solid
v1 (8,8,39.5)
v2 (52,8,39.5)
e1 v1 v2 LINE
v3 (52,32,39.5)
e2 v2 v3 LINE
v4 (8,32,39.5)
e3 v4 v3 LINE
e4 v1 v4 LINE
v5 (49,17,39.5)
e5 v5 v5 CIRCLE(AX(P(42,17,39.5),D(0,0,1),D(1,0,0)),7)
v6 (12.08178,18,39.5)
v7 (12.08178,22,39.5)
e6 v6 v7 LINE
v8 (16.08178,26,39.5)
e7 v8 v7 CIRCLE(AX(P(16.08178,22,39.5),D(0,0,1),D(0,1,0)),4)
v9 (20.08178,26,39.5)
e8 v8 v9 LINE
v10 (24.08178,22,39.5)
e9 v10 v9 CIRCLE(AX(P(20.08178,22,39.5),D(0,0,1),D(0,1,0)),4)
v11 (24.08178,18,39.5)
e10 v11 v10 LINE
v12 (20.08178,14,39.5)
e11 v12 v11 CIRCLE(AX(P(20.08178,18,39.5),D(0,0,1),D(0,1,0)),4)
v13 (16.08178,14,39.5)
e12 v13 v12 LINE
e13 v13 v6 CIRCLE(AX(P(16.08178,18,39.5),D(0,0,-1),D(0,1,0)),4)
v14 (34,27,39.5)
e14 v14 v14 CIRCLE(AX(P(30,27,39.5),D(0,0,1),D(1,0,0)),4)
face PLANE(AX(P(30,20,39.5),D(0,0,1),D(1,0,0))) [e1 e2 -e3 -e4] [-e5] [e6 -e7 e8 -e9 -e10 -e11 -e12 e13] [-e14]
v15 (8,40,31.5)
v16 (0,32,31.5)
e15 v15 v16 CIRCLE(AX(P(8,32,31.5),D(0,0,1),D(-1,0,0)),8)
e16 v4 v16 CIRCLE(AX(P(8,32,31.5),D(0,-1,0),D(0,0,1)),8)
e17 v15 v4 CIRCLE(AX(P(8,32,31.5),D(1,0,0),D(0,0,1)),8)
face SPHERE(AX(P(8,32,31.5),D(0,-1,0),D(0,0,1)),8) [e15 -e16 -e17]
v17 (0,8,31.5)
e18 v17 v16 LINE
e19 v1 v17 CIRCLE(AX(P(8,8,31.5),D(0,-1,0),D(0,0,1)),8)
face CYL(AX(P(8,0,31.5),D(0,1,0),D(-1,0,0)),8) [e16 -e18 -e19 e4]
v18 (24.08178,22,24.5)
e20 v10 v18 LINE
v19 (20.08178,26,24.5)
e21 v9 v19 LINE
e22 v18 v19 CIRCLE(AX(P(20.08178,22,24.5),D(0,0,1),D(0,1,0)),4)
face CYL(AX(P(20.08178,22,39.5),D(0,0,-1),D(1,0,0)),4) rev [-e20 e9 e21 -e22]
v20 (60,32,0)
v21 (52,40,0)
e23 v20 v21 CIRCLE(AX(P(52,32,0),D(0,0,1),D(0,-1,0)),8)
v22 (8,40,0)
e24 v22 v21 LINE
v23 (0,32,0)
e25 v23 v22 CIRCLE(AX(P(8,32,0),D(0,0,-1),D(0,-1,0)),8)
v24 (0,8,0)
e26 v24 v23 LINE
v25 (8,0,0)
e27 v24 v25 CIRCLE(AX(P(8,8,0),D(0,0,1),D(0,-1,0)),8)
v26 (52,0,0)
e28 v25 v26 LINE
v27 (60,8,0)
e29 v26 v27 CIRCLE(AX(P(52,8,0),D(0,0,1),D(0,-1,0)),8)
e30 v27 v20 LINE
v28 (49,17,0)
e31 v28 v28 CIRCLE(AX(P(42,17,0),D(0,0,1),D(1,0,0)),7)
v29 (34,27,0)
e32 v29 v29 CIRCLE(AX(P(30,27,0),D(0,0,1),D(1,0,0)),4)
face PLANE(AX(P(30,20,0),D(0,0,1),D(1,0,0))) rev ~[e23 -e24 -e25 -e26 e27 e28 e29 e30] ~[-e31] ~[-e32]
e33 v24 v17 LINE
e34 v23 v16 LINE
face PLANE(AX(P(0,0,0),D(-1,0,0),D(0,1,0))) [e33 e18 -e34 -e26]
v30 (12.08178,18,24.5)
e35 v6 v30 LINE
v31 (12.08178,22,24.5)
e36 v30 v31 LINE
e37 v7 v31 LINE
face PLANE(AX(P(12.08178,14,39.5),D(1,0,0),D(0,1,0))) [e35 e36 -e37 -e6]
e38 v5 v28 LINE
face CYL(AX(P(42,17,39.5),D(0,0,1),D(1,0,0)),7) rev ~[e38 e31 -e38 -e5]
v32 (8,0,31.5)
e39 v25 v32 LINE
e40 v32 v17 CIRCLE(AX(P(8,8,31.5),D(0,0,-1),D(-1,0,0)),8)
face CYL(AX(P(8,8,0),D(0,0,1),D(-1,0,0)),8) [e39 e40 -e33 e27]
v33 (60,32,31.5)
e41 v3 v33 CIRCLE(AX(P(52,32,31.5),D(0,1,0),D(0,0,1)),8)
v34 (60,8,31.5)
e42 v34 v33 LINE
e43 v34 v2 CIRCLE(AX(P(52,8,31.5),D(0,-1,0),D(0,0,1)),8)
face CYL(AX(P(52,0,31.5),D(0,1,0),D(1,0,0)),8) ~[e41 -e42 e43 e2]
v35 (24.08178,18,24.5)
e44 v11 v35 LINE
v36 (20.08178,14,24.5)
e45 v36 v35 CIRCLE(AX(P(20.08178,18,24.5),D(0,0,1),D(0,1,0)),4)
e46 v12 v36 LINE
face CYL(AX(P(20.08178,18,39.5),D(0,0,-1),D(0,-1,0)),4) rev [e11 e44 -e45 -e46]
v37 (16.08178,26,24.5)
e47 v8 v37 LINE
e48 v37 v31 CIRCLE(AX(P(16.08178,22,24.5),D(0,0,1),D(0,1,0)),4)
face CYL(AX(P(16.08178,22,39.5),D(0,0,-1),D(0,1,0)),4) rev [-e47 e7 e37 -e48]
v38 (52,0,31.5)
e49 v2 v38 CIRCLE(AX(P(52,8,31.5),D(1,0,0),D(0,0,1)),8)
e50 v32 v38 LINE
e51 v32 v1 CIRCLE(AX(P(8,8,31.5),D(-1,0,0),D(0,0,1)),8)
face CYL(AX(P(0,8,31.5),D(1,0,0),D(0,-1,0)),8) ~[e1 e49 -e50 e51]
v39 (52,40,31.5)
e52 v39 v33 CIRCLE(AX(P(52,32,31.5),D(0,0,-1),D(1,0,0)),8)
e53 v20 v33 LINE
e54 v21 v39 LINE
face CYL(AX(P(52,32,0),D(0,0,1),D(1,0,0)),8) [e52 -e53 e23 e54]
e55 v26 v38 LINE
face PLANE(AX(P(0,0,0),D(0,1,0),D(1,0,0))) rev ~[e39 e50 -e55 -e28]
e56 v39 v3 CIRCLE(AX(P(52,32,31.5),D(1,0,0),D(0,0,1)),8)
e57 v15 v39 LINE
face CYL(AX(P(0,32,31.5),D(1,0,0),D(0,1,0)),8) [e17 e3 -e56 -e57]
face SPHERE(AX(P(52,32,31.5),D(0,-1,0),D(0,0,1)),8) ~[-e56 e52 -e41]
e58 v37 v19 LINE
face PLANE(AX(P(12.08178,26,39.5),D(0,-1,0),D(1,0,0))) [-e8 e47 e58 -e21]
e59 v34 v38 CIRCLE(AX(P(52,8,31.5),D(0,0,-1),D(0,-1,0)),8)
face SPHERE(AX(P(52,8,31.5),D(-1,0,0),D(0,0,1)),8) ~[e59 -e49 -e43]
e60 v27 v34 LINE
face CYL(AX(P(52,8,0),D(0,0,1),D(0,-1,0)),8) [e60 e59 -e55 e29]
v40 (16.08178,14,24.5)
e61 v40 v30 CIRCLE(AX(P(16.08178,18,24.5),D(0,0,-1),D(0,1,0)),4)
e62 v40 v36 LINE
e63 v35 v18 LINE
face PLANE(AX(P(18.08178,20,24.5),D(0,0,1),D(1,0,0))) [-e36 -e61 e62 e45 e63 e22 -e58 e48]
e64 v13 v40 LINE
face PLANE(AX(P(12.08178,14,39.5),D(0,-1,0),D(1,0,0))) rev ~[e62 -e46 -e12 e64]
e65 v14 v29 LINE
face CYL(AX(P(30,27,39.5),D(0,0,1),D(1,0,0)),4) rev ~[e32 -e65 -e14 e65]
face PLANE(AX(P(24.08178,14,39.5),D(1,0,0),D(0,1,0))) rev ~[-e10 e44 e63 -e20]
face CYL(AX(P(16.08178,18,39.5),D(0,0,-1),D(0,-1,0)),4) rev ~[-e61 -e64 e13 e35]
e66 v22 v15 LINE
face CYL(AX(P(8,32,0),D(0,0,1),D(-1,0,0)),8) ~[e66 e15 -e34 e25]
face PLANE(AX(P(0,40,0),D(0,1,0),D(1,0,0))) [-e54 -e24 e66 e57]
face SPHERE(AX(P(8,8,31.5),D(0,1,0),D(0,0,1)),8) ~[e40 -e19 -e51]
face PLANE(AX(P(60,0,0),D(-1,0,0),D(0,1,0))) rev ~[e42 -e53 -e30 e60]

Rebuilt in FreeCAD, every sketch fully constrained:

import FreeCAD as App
import Part
import Sketcher

V = App.Vector


def edges_at(feature, points):
    """Names of the edges that pass closest to the given points."""
    edges = feature.Shape.Edges
    near = lambda p: min(range(len(edges)), key=lambda i: edges[i].distToShape(Part.Vertex(*p))[0])
    return sorted({f"Edge{near(p) + 1}" for p in points})


def add_polygon(sketch, points):
    """Adds a closed chain of lines whose ends are joined by coincident constraints."""
    first, n = sketch.GeometryCount, len(points)
    for a, b in zip(points, points[1:] + points[:1]):
        sketch.addGeometry(Part.LineSegment(App.Vector(*a, 0), App.Vector(*b, 0)), False)
    for i in range(n):
        sketch.addConstraint(Sketcher.Constraint("Coincident", first + i, 2, first + (i + 1) % n, 1))

doc = App.newDocument("Part")
body = doc.addObject("PartDesign::Body", "Body")

# Sketch on XY plane
sketch1 = body.newObject("Sketcher::SketchObject", "Sketch")
sketch1.AttachmentSupport = (doc.getObject("XY_Plane"), [""])
sketch1.MapMode = "FlatFace"
add_polygon(sketch1, [(0, 40), (0, 0), (60, 0), (60, 40)])  # lines 0-3
sketch1.addConstraint(Sketcher.Constraint("Vertical", 0))
sketch1.addConstraint(Sketcher.Constraint("Horizontal", 1))
sketch1.addConstraint(Sketcher.Constraint("Vertical", 2))
sketch1.addConstraint(Sketcher.Constraint("Horizontal", 3))
sketch1.addConstraint(Sketcher.Constraint("Coincident", 0, 2, -1, 1))
sketch1.addConstraint(Sketcher.Constraint("DistanceX", 1, 1, 1, 2, 60.0))
sketch1.addConstraint(Sketcher.Constraint("DistanceY", 0, 2, 0, 1, 40.0))
pad1 = body.newObject("PartDesign::Pad", "Pad")
pad1.Profile = sketch1
pad1.Length = 39.5
doc.recompute()

fillet = body.newObject("PartDesign::Fillet", "Fillet")
fillet.Base = (pad1, edges_at(pad1, [
    (0, 20, 39.5),
    (30, 0, 39.5),
    (60, 20, 39.5),
    (30, 40, 39.5),
    (60, 0, 19.75),
    (60, 40, 19.75),
    (0, 0, 19.75),
    (0, 40, 19.75),
]))
fillet.Radius = 8

# Sketch on XY plane
sketch2 = body.newObject("Sketcher::SketchObject", "Sketch001")
sketch2.AttachmentSupport = (doc.getObject("XY_Plane"), [""])
sketch2.MapMode = "FlatFace"
sketch2.AttachmentOffset = App.Placement(V(0, 0, 39.5), App.Rotation())
add_polygon(sketch2, [(12, 26), (12, 14), (24, 14), (24, 26)])  # lines 0-3
sketch2.addConstraint(Sketcher.Constraint("Vertical", 0))
sketch2.addConstraint(Sketcher.Constraint("Horizontal", 1))
sketch2.addConstraint(Sketcher.Constraint("Vertical", 2))
sketch2.addConstraint(Sketcher.Constraint("Horizontal", 3))
sketch2.addConstraint(Sketcher.Constraint("Equal", 3, 0))
sketch2.addConstraint(Sketcher.Constraint("DistanceX", 1, 1, 1, 2, 12.0))
sketch2.addConstraint(Sketcher.Constraint("DistanceY", -1, 1, 0, 2, 14.0))
sketch2.addConstraint(Sketcher.Constraint("DistanceX", -1, 1, 0, 2, 12.08178))
pocket1 = body.newObject("PartDesign::Pocket", "Pocket")
pocket1.Profile = sketch2
pocket1.Length = 15
doc.recompute()

fillet2 = body.newObject("PartDesign::Fillet", "Fillet001")
fillet2.Base = (pocket1, edges_at(pocket1, [
    (12.082, 26, 32),
    (12.082, 14, 32),
    (24.082, 26, 32),
    (24.082, 14, 32),
]))
fillet2.Radius = 4

# Sketch on XY plane
sketch3 = body.newObject("Sketcher::SketchObject", "Sketch002")
sketch3.AttachmentSupport = (doc.getObject("XY_Plane"), [""])
sketch3.MapMode = "FlatFace"
sketch3.AttachmentOffset = App.Placement(V(0, 0, 39.5), App.Rotation())
sketch3.addGeometry(Part.Circle(V(30, 27, 0), V(0, 0, 1), 4), False)
sketch3.addGeometry(Part.Circle(V(42, 17, 0), V(0, 0, 1), 7), False)
sketch3.addConstraint(Sketcher.Constraint("Diameter", 0, 8.0))
sketch3.addConstraint(Sketcher.Constraint("Diameter", 1, 14.0))
sketch3.addConstraint(Sketcher.Constraint("DistanceX", -1, 1, 0, 3, 30.0))
sketch3.addConstraint(Sketcher.Constraint("DistanceY", -1, 1, 0, 3, 27.0))
sketch3.addConstraint(Sketcher.Constraint("DistanceX", -1, 1, 1, 3, 42.0))
sketch3.addConstraint(Sketcher.Constraint("DistanceY", -1, 1, 1, 3, 17.0))
pocket2 = body.newObject("PartDesign::Pocket", "Pocket001")
pocket2.Profile = sketch3
pocket2.Type = "ThroughAll"

doc.recompute()
